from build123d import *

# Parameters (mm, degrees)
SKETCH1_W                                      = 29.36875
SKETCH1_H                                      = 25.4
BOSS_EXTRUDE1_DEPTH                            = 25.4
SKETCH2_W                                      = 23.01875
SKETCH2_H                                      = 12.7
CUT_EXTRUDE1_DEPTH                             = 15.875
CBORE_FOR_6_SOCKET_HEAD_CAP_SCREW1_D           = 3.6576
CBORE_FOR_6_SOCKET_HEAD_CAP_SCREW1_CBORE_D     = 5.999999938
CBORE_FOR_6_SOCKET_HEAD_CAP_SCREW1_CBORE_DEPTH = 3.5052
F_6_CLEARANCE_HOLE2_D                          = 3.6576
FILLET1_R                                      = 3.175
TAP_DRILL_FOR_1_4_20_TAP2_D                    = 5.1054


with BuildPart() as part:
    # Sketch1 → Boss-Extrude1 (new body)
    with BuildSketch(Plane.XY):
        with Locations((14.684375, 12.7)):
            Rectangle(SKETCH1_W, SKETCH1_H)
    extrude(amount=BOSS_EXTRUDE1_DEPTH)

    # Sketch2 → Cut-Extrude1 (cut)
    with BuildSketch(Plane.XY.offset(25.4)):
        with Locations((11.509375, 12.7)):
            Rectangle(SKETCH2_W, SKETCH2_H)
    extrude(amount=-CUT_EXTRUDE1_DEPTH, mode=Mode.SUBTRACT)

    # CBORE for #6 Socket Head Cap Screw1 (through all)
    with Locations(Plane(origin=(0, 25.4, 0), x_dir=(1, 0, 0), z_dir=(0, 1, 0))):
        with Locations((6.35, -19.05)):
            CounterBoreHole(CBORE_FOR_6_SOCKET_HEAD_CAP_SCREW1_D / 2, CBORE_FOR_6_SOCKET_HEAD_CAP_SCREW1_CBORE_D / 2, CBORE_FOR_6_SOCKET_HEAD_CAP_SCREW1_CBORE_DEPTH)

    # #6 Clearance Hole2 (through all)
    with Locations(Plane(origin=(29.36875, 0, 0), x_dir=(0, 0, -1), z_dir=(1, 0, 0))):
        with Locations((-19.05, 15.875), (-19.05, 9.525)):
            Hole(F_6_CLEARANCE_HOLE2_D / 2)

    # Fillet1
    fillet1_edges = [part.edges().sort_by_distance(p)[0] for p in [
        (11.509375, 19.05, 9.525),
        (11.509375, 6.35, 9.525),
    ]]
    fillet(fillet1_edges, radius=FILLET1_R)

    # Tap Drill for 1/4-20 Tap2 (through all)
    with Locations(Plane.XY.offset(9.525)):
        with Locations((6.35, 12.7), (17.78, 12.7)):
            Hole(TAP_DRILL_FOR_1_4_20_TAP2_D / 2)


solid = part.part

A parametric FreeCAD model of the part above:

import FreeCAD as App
import Part
import Sketcher

V = App.Vector
Q = App.Units.Quantity


def edges_at(feature, points):
    """Names of the edges that pass closest to the given points."""
    edges = feature.Shape.Edges
    near = lambda p: min(range(len(edges)), key=lambda i: edges[i].distToShape(Part.Vertex(*p))[0])
    return sorted({f"Edge{near(p) + 1}" for p in points})

doc = App.newDocument("Part")
body = doc.addObject("PartDesign::Body", "Body")

sketch1 = body.newObject("Sketcher::SketchObject", "Sketch")
sketch1.AttachmentSupport = (doc.getObject("XY_Plane"), [""])
sketch1.MapMode = "FlatFace"
sketch1.addGeometry([
    Part.LineSegment(V(0, 25, 0), V(0, 0, 0)),
    Part.LineSegment(V(0, 0, 0), V(29, 0, 0)),
    Part.LineSegment(V(29, 0, 0), V(29, 25, 0)),
    Part.LineSegment(V(29, 25, 0), V(0, 25, 0)),
], False)
sketch1.addConstraint([
    Sketcher.Constraint("Coincident", 0, 2, 1, 1),
    Sketcher.Constraint("Coincident", 1, 2, 2, 1),
    Sketcher.Constraint("Coincident", 2, 2, 3, 1),
    Sketcher.Constraint("Coincident", 3, 2, 0, 1),
    Sketcher.Constraint("Vertical", 0),
    Sketcher.Constraint("Horizontal", 1),
    Sketcher.Constraint("Vertical", 2),
    Sketcher.Constraint("Horizontal", 3),
    Sketcher.Constraint("Coincident", 0, 2, -1, 1),
    Sketcher.Constraint("DistanceY", 0, 2, 0, 1, Q("1 in")),
    Sketcher.Constraint("DistanceX", 1, 1, 1, 2, Q("1.15625 in")),
])
pad1 = body.newObject("PartDesign::Pad", "Pad")
pad1.Profile = sketch1
pad1.Length = Q("1 in")

sketch2 = body.newObject("Sketcher::SketchObject", "Sketch001")
sketch2.AttachmentSupport = (doc.getObject("XY_Plane"), [""])
sketch2.MapMode = "FlatFace"
sketch2.AttachmentOffset = App.Placement(V(0, 0, 1 * 25.4), App.Rotation())
sketch2.addGeometry([
    Part.LineSegment(V(0, 19, 0), V(0, 6, 0)),
    Part.LineSegment(V(0, 6, 0), V(23, 6, 0)),
    Part.LineSegment(V(23, 6, 0), V(23, 19, 0)),
    Part.LineSegment(V(23, 19, 0), V(0, 19, 0)),
], False)
sketch2.addConstraint([
    Sketcher.Constraint("Coincident", 0, 2, 1, 1),
    Sketcher.Constraint("Coincident", 1, 2, 2, 1),
    Sketcher.Constraint("Coincident", 2, 2, 3, 1),
    Sketcher.Constraint("Coincident", 3, 2, 0, 1),
    Sketcher.Constraint("Vertical", 0),
    Sketcher.Constraint("Horizontal", 1),
    Sketcher.Constraint("Vertical", 2),
    Sketcher.Constraint("Horizontal", 3),
    Sketcher.Constraint("PointOnObject", 0, 2, -2),
    Sketcher.Constraint("DistanceY", 0, 2, 0, 1, Q("0.5 in")),
    Sketcher.Constraint("DistanceX", 1, 1, 1, 2, Q("0.90625 in")),
    Sketcher.Constraint("DistanceY", -1, 1, 0, 2, Q("0.25 in")),
])
pocket1 = body.newObject("PartDesign::Pocket", "Pocket")
pocket1.Profile = sketch2
pocket1.Length = Q("0.625 in")

sketch3 = body.newObject("Sketcher::SketchObject", "Sketch002")
sketch3.AttachmentSupport = (doc.getObject("XZ_Plane"), [""])
sketch3.MapMode = "FlatFace"
sketch3.AttachmentOffset = App.Placement(V(0, 0, -1 * 25.4), App.Rotation())
sketch3.addGeometry(Part.Circle(V(6.3, 19.1, 0), V(0, 0, 1), 1.8), False)
sketch3.addConstraint([
    Sketcher.Constraint("Diameter", 0, Q("0.144 in")),
    Sketcher.Constraint("DistanceX", -1, 1, 0, 3, Q("0.25 in")),
    Sketcher.Constraint("DistanceY", -1, 1, 0, 3, Q("0.75 in")),
])
doc.recompute()
hole = body.newObject("PartDesign::Hole", "Hole")
hole.Profile = sketch3
hole.ThreadType = "None"
hole.Diameter = Q("0.144 in")
hole.DepthType = "ThroughAll"
hole.HoleCutType = "Counterbore"
hole.HoleCutDiameter = 6
hole.HoleCutDepth = Q("0.138 in")
hole.Reversed = True

sketch4 = body.newObject("Sketcher::SketchObject", "Sketch003")
sketch4.AttachmentSupport = (doc.getObject("YZ_Plane"), [""])
sketch4.MapMode = "FlatFace"
sketch4.AttachmentOffset = App.Placement(V(0, 0, 1.15625 * 25.4), App.Rotation())
sketch4.addGeometry([
    Part.Circle(V(15.9, 19.1, 0), V(0, 0, 1), 1.8),
    Part.Circle(V(9.5, 19.1, 0), V(0, 0, 1), 1.8),
], False)
sketch4.addConstraint([
    Sketcher.Constraint("Equal", 0, 1),
    Sketcher.Constraint("Horizontal", 0, 3, 1, 3),
    Sketcher.Constraint("Diameter", 0, Q("0.144 in")),
    Sketcher.Constraint("DistanceY", -1, 1, 0, 3, Q("0.75 in")),
    Sketcher.Constraint("DistanceX", 1, 3, 0, 3, Q("0.25 in")),
    Sketcher.Constraint("DistanceX", -1, 1, 0, 3, Q("0.625 in")),
])
doc.recompute()
hole2 = body.newObject("PartDesign::Hole", "Hole001")
hole2.Profile = sketch4
hole2.ThreadType = "None"
hole2.Diameter = Q("0.144 in")
hole2.DepthType = "ThroughAll"
doc.recompute()

fillet = body.newObject("PartDesign::Fillet", "Fillet")
fillet.Base = (hole2, edges_at(hole2, [(11.509, 19.05, 9.525), (11.509, 6.35, 9.525)]))
fillet.Radius = Q("0.125 in")

sketch5 = body.newObject("Sketcher::SketchObject", "Sketch004")
sketch5.AttachmentSupport = (doc.getObject("XY_Plane"), [""])
sketch5.MapMode = "FlatFace"
sketch5.AttachmentOffset = App.Placement(V(0, 0, 0.375 * 25.4), App.Rotation())
sketch5.addGeometry([
    Part.Circle(V(6.3, 12.7, 0), V(0, 0, 1), 2.6),
    Part.Circle(V(17.8, 12.7, 0), V(0, 0, 1), 2.6),
], False)
sketch5.addConstraint([
    Sketcher.Constraint("Equal", 0, 1),
    Sketcher.Constraint("Horizontal", 0, 3, 1, 3),
    Sketcher.Constraint("Diameter", 0, Q("0.201 in")),
    Sketcher.Constraint("DistanceY", -1, 1, 0, 3, Q("0.5 in")),
    Sketcher.Constraint("DistanceX", -1, 1, 1, 3, Q("0.7 in")),
    Sketcher.Constraint("DistanceX", -1, 1, 0, 3, Q("0.25 in")),
])
doc.recompute()
hole3 = body.newObject("PartDesign::Hole", "Hole002")
hole3.Profile = sketch5
hole3.ThreadType = "None"
hole3.Diameter = Q("0.201 in")
hole3.DepthType = "ThroughAll"

doc.recompute()
